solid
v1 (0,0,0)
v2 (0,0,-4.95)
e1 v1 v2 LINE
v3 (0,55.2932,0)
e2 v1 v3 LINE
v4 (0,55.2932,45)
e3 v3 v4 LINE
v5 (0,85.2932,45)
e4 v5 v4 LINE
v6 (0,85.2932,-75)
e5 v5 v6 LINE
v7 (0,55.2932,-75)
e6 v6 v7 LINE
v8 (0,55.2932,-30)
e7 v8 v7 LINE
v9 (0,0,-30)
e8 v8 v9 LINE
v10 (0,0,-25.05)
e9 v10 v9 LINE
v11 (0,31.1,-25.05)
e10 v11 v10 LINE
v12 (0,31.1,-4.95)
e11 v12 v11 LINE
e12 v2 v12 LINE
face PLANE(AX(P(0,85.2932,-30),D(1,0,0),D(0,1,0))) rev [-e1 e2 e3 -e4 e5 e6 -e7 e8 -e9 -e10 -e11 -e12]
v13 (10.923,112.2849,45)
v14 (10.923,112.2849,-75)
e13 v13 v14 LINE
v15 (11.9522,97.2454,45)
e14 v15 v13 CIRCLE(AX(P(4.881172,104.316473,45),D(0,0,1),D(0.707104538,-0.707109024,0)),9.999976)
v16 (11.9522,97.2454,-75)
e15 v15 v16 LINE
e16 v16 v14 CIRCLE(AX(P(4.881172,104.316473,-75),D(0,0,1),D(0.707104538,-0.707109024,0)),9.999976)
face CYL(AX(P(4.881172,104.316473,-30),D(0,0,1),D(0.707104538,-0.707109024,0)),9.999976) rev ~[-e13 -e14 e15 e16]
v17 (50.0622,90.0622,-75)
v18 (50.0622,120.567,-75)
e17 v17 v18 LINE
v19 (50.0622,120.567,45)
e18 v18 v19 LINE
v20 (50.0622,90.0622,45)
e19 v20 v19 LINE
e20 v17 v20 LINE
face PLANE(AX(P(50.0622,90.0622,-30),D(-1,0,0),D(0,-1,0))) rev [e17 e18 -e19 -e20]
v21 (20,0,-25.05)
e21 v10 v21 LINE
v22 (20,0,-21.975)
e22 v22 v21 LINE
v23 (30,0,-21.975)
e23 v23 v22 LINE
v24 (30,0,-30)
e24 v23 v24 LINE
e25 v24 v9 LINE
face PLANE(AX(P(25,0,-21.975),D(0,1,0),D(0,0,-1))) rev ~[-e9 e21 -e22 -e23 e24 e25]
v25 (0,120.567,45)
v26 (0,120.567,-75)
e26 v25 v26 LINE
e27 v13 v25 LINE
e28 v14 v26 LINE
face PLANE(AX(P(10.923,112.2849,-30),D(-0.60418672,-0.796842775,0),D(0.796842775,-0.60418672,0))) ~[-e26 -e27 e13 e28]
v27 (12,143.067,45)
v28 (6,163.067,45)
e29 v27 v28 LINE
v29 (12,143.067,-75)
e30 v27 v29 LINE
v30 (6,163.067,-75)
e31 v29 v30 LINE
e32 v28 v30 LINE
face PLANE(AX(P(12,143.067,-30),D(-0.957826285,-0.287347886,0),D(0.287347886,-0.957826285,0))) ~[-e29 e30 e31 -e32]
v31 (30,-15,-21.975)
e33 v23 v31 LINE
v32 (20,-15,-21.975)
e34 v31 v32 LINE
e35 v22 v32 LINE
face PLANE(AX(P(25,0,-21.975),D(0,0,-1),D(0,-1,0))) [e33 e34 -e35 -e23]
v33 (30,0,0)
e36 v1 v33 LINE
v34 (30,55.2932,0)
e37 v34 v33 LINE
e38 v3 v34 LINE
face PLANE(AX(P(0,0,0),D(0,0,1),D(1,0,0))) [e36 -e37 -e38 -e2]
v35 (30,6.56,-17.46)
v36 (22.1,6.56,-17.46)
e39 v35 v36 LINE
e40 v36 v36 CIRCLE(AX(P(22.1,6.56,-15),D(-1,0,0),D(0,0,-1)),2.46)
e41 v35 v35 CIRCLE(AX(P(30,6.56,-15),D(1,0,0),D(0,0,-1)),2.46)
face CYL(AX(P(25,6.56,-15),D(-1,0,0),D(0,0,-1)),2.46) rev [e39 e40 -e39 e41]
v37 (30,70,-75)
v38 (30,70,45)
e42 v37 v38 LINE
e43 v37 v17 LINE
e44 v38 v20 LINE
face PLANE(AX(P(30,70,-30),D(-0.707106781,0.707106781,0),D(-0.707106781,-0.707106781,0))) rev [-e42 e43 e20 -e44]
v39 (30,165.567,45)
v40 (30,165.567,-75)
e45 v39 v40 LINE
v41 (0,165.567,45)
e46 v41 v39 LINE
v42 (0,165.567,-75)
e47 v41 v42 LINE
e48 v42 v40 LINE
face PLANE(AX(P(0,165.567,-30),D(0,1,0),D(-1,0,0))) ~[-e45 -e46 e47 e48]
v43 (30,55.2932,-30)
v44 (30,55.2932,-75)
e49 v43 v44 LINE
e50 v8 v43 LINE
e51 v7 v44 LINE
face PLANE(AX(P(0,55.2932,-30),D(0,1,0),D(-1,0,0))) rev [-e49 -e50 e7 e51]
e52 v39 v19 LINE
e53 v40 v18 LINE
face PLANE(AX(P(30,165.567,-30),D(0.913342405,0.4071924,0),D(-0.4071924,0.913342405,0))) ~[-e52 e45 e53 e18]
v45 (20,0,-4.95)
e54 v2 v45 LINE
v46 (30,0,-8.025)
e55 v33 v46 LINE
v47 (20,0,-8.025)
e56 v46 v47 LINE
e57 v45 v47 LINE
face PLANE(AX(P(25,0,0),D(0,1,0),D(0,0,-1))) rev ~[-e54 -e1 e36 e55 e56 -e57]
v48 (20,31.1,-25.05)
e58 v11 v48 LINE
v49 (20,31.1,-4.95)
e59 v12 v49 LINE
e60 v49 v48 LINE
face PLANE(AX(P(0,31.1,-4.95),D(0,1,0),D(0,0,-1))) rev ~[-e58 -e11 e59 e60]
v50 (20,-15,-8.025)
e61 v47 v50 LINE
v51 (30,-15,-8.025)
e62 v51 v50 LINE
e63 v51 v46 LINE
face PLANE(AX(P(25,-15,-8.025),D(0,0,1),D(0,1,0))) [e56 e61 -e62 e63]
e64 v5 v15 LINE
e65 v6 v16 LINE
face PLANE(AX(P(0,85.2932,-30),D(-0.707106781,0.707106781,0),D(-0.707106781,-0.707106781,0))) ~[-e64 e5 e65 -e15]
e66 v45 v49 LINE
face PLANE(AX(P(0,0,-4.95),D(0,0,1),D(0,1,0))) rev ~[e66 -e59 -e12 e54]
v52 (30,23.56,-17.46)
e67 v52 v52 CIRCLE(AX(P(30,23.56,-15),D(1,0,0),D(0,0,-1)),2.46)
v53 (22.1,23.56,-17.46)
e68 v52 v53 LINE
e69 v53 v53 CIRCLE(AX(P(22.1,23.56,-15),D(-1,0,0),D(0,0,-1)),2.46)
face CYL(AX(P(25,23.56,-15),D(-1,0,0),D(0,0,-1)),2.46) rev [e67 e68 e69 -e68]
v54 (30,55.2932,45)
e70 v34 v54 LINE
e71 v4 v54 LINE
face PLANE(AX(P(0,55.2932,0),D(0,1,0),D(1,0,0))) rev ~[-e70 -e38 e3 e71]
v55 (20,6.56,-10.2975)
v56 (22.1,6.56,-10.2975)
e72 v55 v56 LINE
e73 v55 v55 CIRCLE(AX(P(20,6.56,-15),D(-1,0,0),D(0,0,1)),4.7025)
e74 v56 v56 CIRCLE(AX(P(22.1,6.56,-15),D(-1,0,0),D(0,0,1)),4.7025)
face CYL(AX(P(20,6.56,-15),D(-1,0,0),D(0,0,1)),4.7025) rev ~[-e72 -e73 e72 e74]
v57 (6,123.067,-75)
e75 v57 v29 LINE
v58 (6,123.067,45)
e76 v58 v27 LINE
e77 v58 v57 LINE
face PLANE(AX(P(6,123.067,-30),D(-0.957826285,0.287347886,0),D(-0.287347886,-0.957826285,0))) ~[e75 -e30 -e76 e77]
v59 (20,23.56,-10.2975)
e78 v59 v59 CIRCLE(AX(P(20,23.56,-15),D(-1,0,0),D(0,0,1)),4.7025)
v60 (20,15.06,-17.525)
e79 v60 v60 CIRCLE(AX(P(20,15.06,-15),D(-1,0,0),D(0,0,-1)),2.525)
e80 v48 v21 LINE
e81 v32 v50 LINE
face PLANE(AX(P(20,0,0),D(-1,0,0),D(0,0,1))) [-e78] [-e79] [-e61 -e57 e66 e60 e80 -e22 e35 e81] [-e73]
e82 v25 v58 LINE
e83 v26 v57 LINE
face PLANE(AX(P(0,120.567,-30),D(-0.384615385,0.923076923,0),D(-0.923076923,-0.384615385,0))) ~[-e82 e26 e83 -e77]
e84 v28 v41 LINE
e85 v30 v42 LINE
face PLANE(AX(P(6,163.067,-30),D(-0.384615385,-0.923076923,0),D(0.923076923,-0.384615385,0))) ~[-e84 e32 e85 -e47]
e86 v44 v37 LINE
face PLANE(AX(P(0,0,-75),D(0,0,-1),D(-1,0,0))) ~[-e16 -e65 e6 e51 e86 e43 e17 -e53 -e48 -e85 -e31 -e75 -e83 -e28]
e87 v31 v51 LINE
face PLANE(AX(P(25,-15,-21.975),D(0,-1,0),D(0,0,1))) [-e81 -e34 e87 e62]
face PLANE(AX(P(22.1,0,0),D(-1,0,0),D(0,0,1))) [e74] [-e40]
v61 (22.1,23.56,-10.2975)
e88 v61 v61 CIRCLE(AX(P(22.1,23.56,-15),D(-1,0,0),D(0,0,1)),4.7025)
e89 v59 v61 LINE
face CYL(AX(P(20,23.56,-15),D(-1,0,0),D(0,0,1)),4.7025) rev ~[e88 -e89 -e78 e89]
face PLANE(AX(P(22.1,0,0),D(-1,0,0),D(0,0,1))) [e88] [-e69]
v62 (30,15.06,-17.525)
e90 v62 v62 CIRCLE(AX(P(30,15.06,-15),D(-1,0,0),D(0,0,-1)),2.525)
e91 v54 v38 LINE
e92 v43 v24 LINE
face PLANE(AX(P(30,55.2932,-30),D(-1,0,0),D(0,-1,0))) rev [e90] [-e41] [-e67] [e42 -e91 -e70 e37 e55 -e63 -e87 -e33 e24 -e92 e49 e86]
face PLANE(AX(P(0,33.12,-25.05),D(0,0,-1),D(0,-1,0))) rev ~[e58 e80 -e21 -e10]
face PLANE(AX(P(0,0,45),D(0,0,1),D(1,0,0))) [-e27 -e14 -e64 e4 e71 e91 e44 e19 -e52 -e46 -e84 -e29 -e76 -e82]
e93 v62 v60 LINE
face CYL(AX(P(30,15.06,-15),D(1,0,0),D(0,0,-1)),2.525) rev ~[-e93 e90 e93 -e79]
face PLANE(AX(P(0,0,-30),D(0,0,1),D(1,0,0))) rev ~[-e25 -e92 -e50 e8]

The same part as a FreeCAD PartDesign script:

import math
import FreeCAD as App
import Part
import Sketcher
from FreeCAD import Vector
Q = App.Units.Quantity


def add_polygon(sketch, points):
    """Adds a closed chain of lines whose ends are joined by coincident constraints."""
    first, n = sketch.GeometryCount, len(points)
    for a, b in zip(points, points[1:] + points[:1]):
        sketch.addGeometry(Part.LineSegment(App.Vector(*a, 0), App.Vector(*b, 0)), False)
    for i in range(n):
        sketch.addConstraint(Sketcher.Constraint("Coincident", first + i, 2, first + (i + 1) % n, 1))

doc = App.newDocument("Part")
body = doc.addObject("PartDesign::Body", "Body")

# Sketch on XY plane
sketch1 = body.newObject("Sketcher::SketchObject", "Sketch")
sketch1.AttachmentSupport = (doc.getObject("XY_Plane"), [""])
sketch1.MapMode = "FlatFace"
add_polygon(sketch1, [(0, 40), (0, 0), (25, 0), (25, 40)])  # lines 0-3
sketch1.addConstraint([
    Sketcher.Constraint("Vertical", 0),
    Sketcher.Constraint("Horizontal", 1),
    Sketcher.Constraint("Vertical", 2),
    Sketcher.Constraint("Horizontal", 3),
    Sketcher.Constraint("Coincident", 0, 2, -1, 1),
    Sketcher.Constraint("DistanceX", 1, 1, 1, 2, Q("25 mm")),
    Sketcher.Constraint("DistanceY", 0, 2, 0, 1, Q("40 mm")),
])
pad1 = body.newObject("PartDesign::Pad", "Pad")
pad1.Profile = sketch1
pad1.Length = 30
pad1.Reversed = True

# Sketch on YZ plane
sketch2 = body.newObject("Sketcher::SketchObject", "Sketch001")
sketch2.AttachmentSupport = (doc.getObject("YZ_Plane"), [""])
sketch2.MapMode = "FlatFace"
sketch2.AttachmentOffset = App.Placement(Vector(0, 0, 25), App.Rotation())
sketch2.addGeometry(Part.Circle(Vector(6.6, -15, 0), Vector(0, 0, 1), 2.5), False)
sketch2.addConstraint([
    Sketcher.Constraint("Diameter", 0, Q("4.92 mm")),
    Sketcher.Constraint("DistanceY", 0, 3, -1, 1, Q("15 mm")),
    Sketcher.Constraint("DistanceX", -1, 1, 0, 3, Q("6.56 mm")),
])
pocket1 = body.newObject("PartDesign::Pocket", "Pocket")
pocket1.Profile = sketch2
pocket1.Length = 30

# Sketch on YZ plane
sketch3 = body.newObject("Sketcher::SketchObject", "Sketch002")
sketch3.AttachmentSupport = (doc.getObject("YZ_Plane"), [""])
sketch3.MapMode = "FlatFace"
add_polygon(sketch3, [(0, -25), (0, -5), (33, -5), (33, -25)])  # lines 0-3
sketch3.addConstraint([
    Sketcher.Constraint("Vertical", 0),
    Sketcher.Constraint("Horizontal", 1),
    Sketcher.Constraint("Vertical", 2),
    Sketcher.Constraint("Horizontal", 3),
    Sketcher.Constraint("PointOnObject", 0, 2, -2),
    Sketcher.Constraint("DistanceY", 0, 1, 0, 2, Q("20.1 mm")),
    Sketcher.Constraint("DistanceX", 1, 1, 1, 2, Q("33.12 mm")),
    Sketcher.Constraint("DistanceY", 0, 2, -1, 1, Q("4.95 mm")),
])
pocket2 = body.newObject("PartDesign::Pocket", "Pocket001")
pocket2.Profile = sketch3
pocket2.Length = 20
pocket2.Reversed = True

# Sketch on XZ plane
sketch4 = body.newObject("Sketcher::SketchObject", "Sketch003")
sketch4.AttachmentSupport = (doc.getObject("XZ_Plane"), [""])
sketch4.MapMode = "FlatFace"
add_polygon(sketch4, [(25, -8), (20, -8), (20, -22), (25, -22)])  # lines 0-3
sketch4.addConstraint([
    Sketcher.Constraint("Horizontal", 0),
    Sketcher.Constraint("Vertical", 1),
    Sketcher.Constraint("Horizontal", 2),
    Sketcher.Constraint("Vertical", 3),
    Sketcher.Constraint("DistanceY", 1, 2, 1, 1, Q("13.95 mm")),
    Sketcher.Constraint("DistanceX", 0, 2, 0, 1, Q("5 mm")),
    Sketcher.Constraint("DistanceX", -1, 1, 0, 2, Q("20 mm")),
    Sketcher.Constraint("DistanceY", 0, 2, -1, 1, Q("8.025 mm")),
])
pad2 = body.newObject("PartDesign::Pad", "Pad001")
pad2.Profile = sketch4
pad2.Length = 15

# Sketch on YZ plane
sketch5 = body.newObject("Sketcher::SketchObject", "Sketch004")
sketch5.AttachmentSupport = (doc.getObject("YZ_Plane"), [""])
sketch5.MapMode = "FlatFace"
sketch5.AttachmentOffset = App.Placement(Vector(0, 0, 20), App.Rotation())
sketch5.addGeometry([
    Part.Circle(Vector(6.6, -15, 0), Vector(0, 0, 1), 4.7),
    Part.Circle(Vector(6.6, -15, 0), Vector(0, 0, 1), 2.5),
], False)
sketch5.addConstraint([
    Sketcher.Constraint("Coincident", 1, 3, 0, 3),
    Sketcher.Constraint("Diameter", 0, Q("9.405 mm")),
    Sketcher.Constraint("Diameter", 1, Q("4.92 mm")),
    Sketcher.Constraint("DistanceY", 0, 3, -1, 1, Q("15 mm")),
    Sketcher.Constraint("DistanceX", -1, 1, 0, 3, Q("6.56 mm")),
])
pocket3 = body.newObject("PartDesign::Pocket", "Pocket002")
pocket3.Profile = sketch5
pocket3.Length = 2.1
pocket3.Reversed = True

# Sketch on YZ plane
sketch6 = body.newObject("Sketcher::SketchObject", "Sketch005")
sketch6.AttachmentSupport = (doc.getObject("YZ_Plane"), [""])
sketch6.MapMode = "FlatFace"
sketch6.AttachmentOffset = App.Placement(Vector(0, 0, 25), App.Rotation())
sketch6.addGeometry(Part.Circle(Vector(23.6, -15, 0), Vector(0, 0, 1), 2.5), False)
sketch6.addConstraint([
    Sketcher.Constraint("Diameter", 0, Q("4.92 mm")),
    Sketcher.Constraint("DistanceY", 0, 3, -1, 1, Q("15 mm")),
    Sketcher.Constraint("DistanceX", -1, 1, 0, 3, Q("23.56 mm")),
])
pocket4 = body.newObject("PartDesign::Pocket", "Pocket003")
pocket4.Profile = sketch6
pocket4.Length = 10

# Sketch on YZ plane
sketch7 = body.newObject("Sketcher::SketchObject", "Sketch006")
sketch7.AttachmentSupport = (doc.getObject("YZ_Plane"), [""])
sketch7.MapMode = "FlatFace"
sketch7.AttachmentOffset = App.Placement(Vector(0, 0, 20), App.Rotation())
sketch7.addGeometry([
    Part.Circle(Vector(23.6, -15, 0), Vector(0, 0, 1), 4.7),
    Part.Circle(Vector(23.6, -15, 0), Vector(0, 0, 1), 2.5),
], False)
sketch7.addConstraint([
    Sketcher.Constraint("Coincident", 1, 3, 0, 3),
    Sketcher.Constraint("Diameter", 0, Q("9.405 mm")),
    Sketcher.Constraint("Diameter", 1, Q("4.92 mm")),
    Sketcher.Constraint("DistanceY", 0, 3, -1, 1, Q("15 mm")),
    Sketcher.Constraint("DistanceX", -1, 1, 0, 3, Q("23.56 mm")),
])
pocket5 = body.newObject("PartDesign::Pocket", "Pocket004")
pocket5.Profile = sketch7
pocket5.Length = 2.1
pocket5.Reversed = True

# Sketch on YZ plane
sketch8 = body.newObject("Sketcher::SketchObject", "Sketch007")
sketch8.AttachmentSupport = (doc.getObject("YZ_Plane"), [""])
sketch8.MapMode = "FlatFace"
sketch8.AttachmentOffset = App.Placement(Vector(0, 0, 25), App.Rotation())
add_polygon(sketch8, [(0, -30), (40, -30), (40, 0), (0, 0), (0, -8), (-15, -8), (-15, -22), (0, -22)])  # lines 0-7
sketch8.addGeometry(Part.Circle(Vector(6.6, -15, 0), Vector(0, 0, 1), 2.5), False)  # 8
sketch8.addGeometry(Part.Circle(Vector(23.6, -15, 0), Vector(0, 0, 1), 2.5), False)  # 9
sketch8.addConstraint([
    Sketcher.Constraint("Horizontal", 0),
    Sketcher.Constraint("Vertical", 1),
    Sketcher.Constraint("Horizontal", 2),
    Sketcher.Constraint("Vertical", 3),
    Sketcher.Constraint("Horizontal", 4),
    Sketcher.Constraint("Vertical", 5),
    Sketcher.Constraint("Horizontal", 6),
    Sketcher.Constraint("Vertical", 7),
    Sketcher.Constraint("Coincident", 2, 2, -1, 1),
    Sketcher.Constraint("Equal", 8, 9),
    Sketcher.Constraint("PointOnObject", 6, 2, -2),
    Sketcher.Constraint("Horizontal", 8, 3, 9, 3),
    Sketcher.Constraint("Equal", 3, 7),
    Sketcher.Constraint("Diameter", 8, Q("4.92 mm")),
    Sketcher.Constraint("DistanceX", 0, 1, 0, 2, Q("40 mm")),
    Sketcher.Constraint("DistanceX", 4, 2, 4, 1, Q("15 mm")),
    Sketcher.Constraint("DistanceY", 1, 1, 1, 2, Q("30 mm")),
    Sketcher.Constraint("DistanceY", 8, 3, -1, 1, Q("15 mm")),
    Sketcher.Constraint("DistanceX", 8, 3, 9, 3, Q("17 mm")),
    Sketcher.Constraint("DistanceY", 5, 2, 5, 1, Q("13.95 mm")),
    Sketcher.Constraint("DistanceX", -1, 1, 8, 3, Q("6.56 mm")),
])
pad3 = body.newObject("PartDesign::Pad", "Pad002")
pad3.Profile = sketch8
pad3.Length = 5

# Sketch on XZ plane
sketch9 = body.newObject("Sketcher::SketchObject", "Sketch008")
sketch9.AttachmentSupport = (doc.getObject("XZ_Plane"), [""])
sketch9.MapMode = "FlatFace"
sketch9.AttachmentOffset = App.Placement(Vector(0, 0, -40), App.Rotation())
add_polygon(sketch9, [(30, -30), (0, -30), (0, 0), (30, 0)])  # lines 0-3
sketch9.addConstraint([
    Sketcher.Constraint("Horizontal", 0),
    Sketcher.Constraint("Vertical", 1),
    Sketcher.Constraint("Horizontal", 2),
    Sketcher.Constraint("Vertical", 3),
    Sketcher.Constraint("Coincident", 1, 2, -1, 1),
    Sketcher.Constraint("Equal", 2, 1),
    Sketcher.Constraint("DistanceX", 0, 2, 0, 1, Q("30 mm")),
])
pad4 = body.newObject("PartDesign::Pad", "Pad003")
pad4.Profile = sketch9
pad4.Length = 30
pad4.Reversed = True

# Sketch on YZ plane
sketch10 = body.newObject("Sketcher::SketchObject", "Sketch009")
sketch10.AttachmentSupport = (doc.getObject("YZ_Plane"), [""])
sketch10.MapMode = "FlatFace"
sketch10.AttachmentOffset = App.Placement(Vector(0, 0, 30), App.Rotation())
sketch10.addGeometry(Part.Circle(Vector(15.1, -15, 0), Vector(0, 0, 1), 2.5), False)
sketch10.addConstraint([
    Sketcher.Constraint("Diameter", 0, Q("5.05 mm")),
    Sketcher.Constraint("DistanceY", 0, 3, -1, 1, Q("15 mm")),
    Sketcher.Constraint("DistanceX", -1, 1, 0, 3, Q("15.06 mm")),
])
pocket6 = body.newObject("PartDesign::Pocket", "Pocket005")
pocket6.Profile = sketch10
pocket6.Length = 30

# Sketch on YZ plane
sketch11 = body.newObject("Sketcher::SketchObject", "Sketch010")
sketch11.AttachmentSupport = (doc.getObject("YZ_Plane"), [""])
sketch11.MapMode = "FlatFace"
add_polygon(sketch11, [(33.1, -5), (33.1, -25.1), (31.1, -25.1), (31.1, -5)])  # lines 0-3
sketch11.addConstraint([
    Sketcher.Constraint("Vertical", 0),
    Sketcher.Constraint("Horizontal", 1),
    Sketcher.Constraint("Vertical", 2),
    Sketcher.Constraint("Horizontal", 3),
    Sketcher.Constraint("DistanceX", 1, 2, 1, 1, Q("2.02 mm")),
    Sketcher.Constraint("DistanceY", 0, 2, 0, 1, Q("20.1 mm")),
    Sketcher.Constraint("DistanceX", -1, 1, 1, 2, Q("31.1 mm")),
    Sketcher.Constraint("DistanceY", 0, 2, -1, 1, Q("25.05 mm")),
])
pad5 = body.newObject("PartDesign::Pad", "Pad004")
pad5.Profile = sketch11
pad5.Length = 20

# Sketch on XY plane
sketch12 = body.newObject("Sketcher::SketchObject", "Sketch011")
sketch12.AttachmentSupport = (doc.getObject("XY_Plane"), [""])
sketch12.MapMode = "FlatFace"
sketch12.addGeometry([
    Part.LineSegment(Vector(0, 85, 0), Vector(0, 70, 0)),  # 0
    Part.LineSegment(Vector(0, 70, 0), Vector(30, 70, 0)),  # 1
    Part.LineSegment(Vector(30, 70, 0), Vector(50, 90, 0)),  # 2
    Part.LineSegment(Vector(50, 90, 0), Vector(50, 121, 0)),  # 3
    Part.LineSegment(Vector(50, 121, 0), Vector(30, 166, 0)),  # 4
    Part.LineSegment(Vector(30, 166, 0), Vector(0, 166, 0)),  # 5
    Part.LineSegment(Vector(0, 166, 0), Vector(6, 163, 0)),  # 6
    Part.LineSegment(Vector(6, 163, 0), Vector(12, 143, 0)),  # 7
    Part.LineSegment(Vector(12, 143, 0), Vector(6, 123, 0)),  # 8
    Part.LineSegment(Vector(6, 123, 0), Vector(0, 121, 0)),  # 9
    Part.LineSegment(Vector(0, 121, 0), Vector(11, 112, 0)),  # 10
    Part.ArcOfCircle(Part.Circle(Vector(5, 104, 0), Vector(0, 0, 1), 10), math.radians(-45), math.radians(53)),  # 11
    Part.LineSegment(Vector(12, 97, 0), Vector(0, 85, 0)),  # 12
], False)
sketch12.addConstraint([
    Sketcher.Constraint("Coincident", 0, 2, 1, 1),
    Sketcher.Constraint("Coincident", 1, 2, 2, 1),
    Sketcher.Constraint("Coincident", 2, 2, 3, 1),
    Sketcher.Constraint("Coincident", 3, 2, 4, 1),
    Sketcher.Constraint("Coincident", 4, 2, 5, 1),
    Sketcher.Constraint("Coincident", 5, 2, 6, 1),
    Sketcher.Constraint("Coincident", 6, 2, 7, 1),
    Sketcher.Constraint("Coincident", 7, 2, 8, 1),
    Sketcher.Constraint("Coincident", 8, 2, 9, 1),
    Sketcher.Constraint("Coincident", 9, 2, 10, 1),
    Sketcher.Constraint("Tangent", 10, 2, 11, 2),
    Sketcher.Constraint("Tangent", 11, 1, 12, 1),
    Sketcher.Constraint("Coincident", 12, 2, 0, 1),
    Sketcher.Constraint("Vertical", 0),
    Sketcher.Constraint("Horizontal", 1),
    Sketcher.Constraint("Vertical", 3),
    Sketcher.Constraint("Horizontal", 5),
    Sketcher.Constraint("PointOnObject", 0, 2, -2),
    Sketcher.Constraint("PointOnObject", 5, 2, -2),
    Sketcher.Constraint("PointOnObject", 9, 2, -2),
    Sketcher.Constraint("Parallel", 2, 12),
    Sketcher.Constraint("Horizontal", 3, 2, 9, 2),
    Sketcher.Constraint("Vertical", 1, 2, 4, 2),
    Sketcher.Constraint("Vertical", 6, 2, 8, 2),
    Sketcher.Constraint("Equal", 7, 8),
    Sketcher.Constraint("Equal", 6, 9),
    Sketcher.Constraint("Radius", 11, Q("10 mm")),
    Sketcher.Constraint("Angle", 2, Q("45 deg")),
    Sketcher.Constraint("DistanceY", 3, 2, 4, 2, Q("45 mm")),
    Sketcher.Constraint("DistanceX", 1, 1, 1, 2, Q("30 mm")),
    Sketcher.Constraint("DistanceY", -1, 1, 0, 2, Q("70 mm")),
    Sketcher.Constraint("DistanceX", -1, 1, 6, 2, Q("6 mm")),
    Sketcher.Constraint("DistanceX", -1, 1, 7, 2, Q("12 mm")),
    Sketcher.Constraint("Angle", 7, Q("-73.3008 deg")),
    Sketcher.Constraint("Angle", 10, Q("-37.1703 deg")),
    Sketcher.Constraint("Distance", 12, Q("16.903 mm")),
    Sketcher.Constraint("DistanceY", 0, 2, 0, 1, Q("15.2932 mm")),
    Sketcher.Constraint("DistanceY", 3, 1, 3, 2, Q("30.5048 mm")),
])
pad6 = body.newObject("PartDesign::Pad", "Pad005")
pad6.Profile = sketch12
pad6.Length = 30
pad6.Reversed = True

# Sketch on XY plane
sketch13 = body.newObject("Sketcher::SketchObject", "Sketch012")
sketch13.AttachmentSupport = (doc.getObject("XY_Plane"), [""])
sketch13.MapMode = "FlatFace"
sketch13.addGeometry([
    Part.LineSegment(Vector(30, 55, 0), Vector(30, 70, 0)),  # 0
    Part.LineSegment(Vector(30, 70, 0), Vector(50, 90, 0)),  # 1
    Part.LineSegment(Vector(50, 90, 0), Vector(50, 121, 0)),  # 2
    Part.LineSegment(Vector(50, 121, 0), Vector(30, 166, 0)),  # 3
    Part.LineSegment(Vector(30, 166, 0), Vector(0, 166, 0)),  # 4
    Part.LineSegment(Vector(0, 166, 0), Vector(6, 163, 0)),  # 5
    Part.LineSegment(Vector(6, 163, 0), Vector(12, 143, 0)),  # 6
    Part.LineSegment(Vector(12, 143, 0), Vector(6, 123, 0)),  # 7
    Part.LineSegment(Vector(6, 123, 0), Vector(0, 121, 0)),  # 8
    Part.LineSegment(Vector(0, 121, 0), Vector(11, 112, 0)),  # 9
    Part.ArcOfCircle(Part.Circle(Vector(5, 104, 0), Vector(0, 0, 1), 10), math.radians(-45), math.radians(53)),  # 10
    Part.LineSegment(Vector(12, 97, 0), Vector(0, 85, 0)),  # 11
    Part.LineSegment(Vector(0, 85, 0), Vector(0, 55, 0)),  # 12
    Part.LineSegment(Vector(0, 55, 0), Vector(30, 55, 0)),  # 13
], False)
sketch13.addConstraint([
    Sketcher.Constraint("Coincident", 0, 2, 1, 1),
    Sketcher.Constraint("Coincident", 1, 2, 2, 1),
    Sketcher.Constraint("Coincident", 2, 2, 3, 1),
    Sketcher.Constraint("Coincident", 3, 2, 4, 1),
    Sketcher.Constraint("Coincident", 4, 2, 5, 1),
    Sketcher.Constraint("Coincident", 5, 2, 6, 1),
    Sketcher.Constraint("Coincident", 6, 2, 7, 1),
    Sketcher.Constraint("Coincident", 7, 2, 8, 1),
    Sketcher.Constraint("Coincident", 8, 2, 9, 1),
    Sketcher.Constraint("Tangent", 9, 2, 10, 2),
    Sketcher.Constraint("Tangent", 10, 1, 11, 1),
    Sketcher.Constraint("Coincident", 11, 2, 12, 1),
    Sketcher.Constraint("Coincident", 12, 2, 13, 1),
    Sketcher.Constraint("Coincident", 13, 2, 0, 1),
    Sketcher.Constraint("Vertical", 0),
    Sketcher.Constraint("Vertical", 2),
    Sketcher.Constraint("Horizontal", 4),
    Sketcher.Constraint("Vertical", 12),
    Sketcher.Constraint("Horizontal", 13),
    Sketcher.Constraint("PointOnObject", 4, 2, -2),
    Sketcher.Constraint("PointOnObject", 8, 2, -2),
    Sketcher.Constraint("PointOnObject", 11, 2, -2),
    Sketcher.Constraint("Parallel", 1, 11),
    Sketcher.Constraint("Horizontal", 2, 2, 8, 2),
    Sketcher.Constraint("Vertical", 0, 2, 3, 2),
    Sketcher.Constraint("Vertical", 5, 2, 7, 2),
    Sketcher.Constraint("Equal", 13, 12),
    Sketcher.Constraint("Equal", 6, 7),
    Sketcher.Constraint("Equal", 5, 8),
    Sketcher.Constraint("DistanceX", 4, 2, 4, 1, Q("30 mm")),
    Sketcher.Constraint("Radius", 10, Q("10 mm")),
    Sketcher.Constraint("Angle", 1, Q("45 deg")),
    Sketcher.Constraint("DistanceY", -1, 1, 0, 2, Q("70 mm")),
    Sketcher.Constraint("DistanceX", -1, 1, 5, 2, Q("6 mm")),
    Sketcher.Constraint("DistanceX", -1, 1, 6, 2, Q("12 mm")),
    Sketcher.Constraint("Angle", 6, Q("-73.3008 deg")),
    Sketcher.Constraint("DistanceY", 2, 2, 3, 2, Q("45 mm")),
    Sketcher.Constraint("Angle", 9, Q("-37.1703 deg")),
    Sketcher.Constraint("Distance", 11, Q("16.903 mm")),
    Sketcher.Constraint("DistanceY", 0, 1, 0, 2, Q("14.7068 mm")),
    Sketcher.Constraint("DistanceY", 2, 1, 2, 2, Q("30.5048 mm")),
])
pad7 = body.newObject("PartDesign::Pad", "Pad006")
pad7.Profile = sketch13
pad7.Length = 45
doc.recompute()

datumplane = body.newObject("PartDesign::Plane", "DatumPlane")
datumplane.AttachmentSupport = (doc.getObject("XY_Plane"), [""])
datumplane.MapMode = "FlatFace"
datumplane.AttachmentOffset = App.Placement(Vector(0, 0, -15), App.Rotation())
mirrored = body.newObject("PartDesign::Mirrored", "Mirrored")
mirrored.Originals = [pad7]
mirrored.MirrorPlane = (datumplane, [""])
body.Tip = mirrored

doc.recompute()
